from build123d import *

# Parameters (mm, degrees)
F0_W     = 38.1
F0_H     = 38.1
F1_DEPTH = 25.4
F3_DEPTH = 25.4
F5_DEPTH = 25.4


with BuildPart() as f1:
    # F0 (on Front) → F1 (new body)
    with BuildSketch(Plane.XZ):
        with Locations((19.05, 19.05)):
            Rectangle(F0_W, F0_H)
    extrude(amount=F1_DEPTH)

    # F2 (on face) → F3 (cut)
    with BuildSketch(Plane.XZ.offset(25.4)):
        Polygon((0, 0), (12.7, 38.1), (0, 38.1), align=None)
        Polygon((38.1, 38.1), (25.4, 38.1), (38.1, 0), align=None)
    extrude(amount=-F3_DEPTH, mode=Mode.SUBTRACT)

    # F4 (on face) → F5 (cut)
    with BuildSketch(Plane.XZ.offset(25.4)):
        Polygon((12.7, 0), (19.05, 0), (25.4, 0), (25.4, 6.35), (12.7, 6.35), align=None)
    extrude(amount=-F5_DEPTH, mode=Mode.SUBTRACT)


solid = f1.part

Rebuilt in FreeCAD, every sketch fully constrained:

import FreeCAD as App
import Part
import Sketcher

V = App.Vector
Q = App.Units.Quantity

doc = App.newDocument("Part")
body = doc.addObject("PartDesign::Body", "Body")

# Sketch on XZ plane
sketch1 = body.newObject("Sketcher::SketchObject", "Sketch")
sketch1.AttachmentSupport = (doc.getObject("XZ_Plane"), [""])
sketch1.MapMode = "FlatFace"
sketch1.addGeometry([
    Part.LineSegment(V(0, 38, 0), V(0, 0, 0)),
    Part.LineSegment(V(0, 0, 0), V(38, 0, 0)),
    Part.LineSegment(V(38, 0, 0), V(38, 38, 0)),
    Part.LineSegment(V(38, 38, 0), V(0, 38, 0)),
], False)
sketch1.addConstraint([
    Sketcher.Constraint("Coincident", 0, 2, 1, 1),
    Sketcher.Constraint("Coincident", 1, 2, 2, 1),
    Sketcher.Constraint("Coincident", 2, 2, 3, 1),
    Sketcher.Constraint("Coincident", 3, 2, 0, 1),
    Sketcher.Constraint("Vertical", 0),
    Sketcher.Constraint("Horizontal", 1),
    Sketcher.Constraint("Vertical", 2),
    Sketcher.Constraint("Horizontal", 3),
    Sketcher.Constraint("Coincident", 0, 2, -1, 1),
    Sketcher.Constraint("Equal", 3, 0),
    Sketcher.Constraint("DistanceX", 1, 1, 1, 2, Q("1.5 in")),
])
pad1 = body.newObject("PartDesign::Pad", "Pad")
pad1.Profile = sketch1
pad1.Length = Q("1 in")

# Sketch on XZ plane
sketch2 = body.newObject("Sketcher::SketchObject", "Sketch001")
sketch2.AttachmentSupport = (doc.getObject("XZ_Plane"), [""])
sketch2.MapMode = "FlatFace"
sketch2.AttachmentOffset = App.Placement(V(0, 0, 1 * 25.4), App.Rotation())
sketch2.addGeometry([
    Part.LineSegment(V(0, 0, 0), V(13, 38, 0)),  # 0
    Part.LineSegment(V(13, 38, 0), V(0, 38, 0)),  # 1
    Part.LineSegment(V(0, 38, 0), V(0, 0, 0)),  # 2
    Part.LineSegment(V(38, 38, 0), V(25, 38, 0)),  # 3
    Part.LineSegment(V(25, 38, 0), V(38, 0, 0)),  # 4
    Part.LineSegment(V(38, 0, 0), V(38, 38, 0)),  # 5
], False)
sketch2.addConstraint([
    Sketcher.Constraint("Coincident", 0, 2, 1, 1),
    Sketcher.Constraint("Coincident", 1, 2, 2, 1),
    Sketcher.Constraint("Coincident", 2, 2, 0, 1),
    Sketcher.Constraint("Coincident", 3, 2, 4, 1),
    Sketcher.Constraint("Coincident", 4, 2, 5, 1),
    Sketcher.Constraint("Coincident", 5, 2, 3, 1),
    Sketcher.Constraint("Horizontal", 1),
    Sketcher.Constraint("Vertical", 2),
    Sketcher.Constraint("Horizontal", 3),
    Sketcher.Constraint("Vertical", 5),
    Sketcher.Constraint("Coincident", 2, 2, -1, 1),
    Sketcher.Constraint("PointOnObject", 4, 2, -1),
    Sketcher.Constraint("Horizontal", 1, 2, 3, 2),
    Sketcher.Constraint("Equal", 1, 3),
    Sketcher.Constraint("DistanceX", 1, 2, 1, 1, Q("0.5 in")),
    Sketcher.Constraint("DistanceY", 2, 2, 2, 1, Q("1.5 in")),
    Sketcher.Constraint("DistanceX", -1, 1, 3, 2, Q("1 in")),
])
pocket1 = body.newObject("PartDesign::Pocket", "Pocket")
pocket1.Profile = sketch2
pocket1.Length = Q("1 in")

# Sketch on XZ plane
sketch3 = body.newObject("Sketcher::SketchObject", "Sketch002")
sketch3.AttachmentSupport = (doc.getObject("XZ_Plane"), [""])
sketch3.MapMode = "FlatFace"
sketch3.AttachmentOffset = App.Placement(V(0, 0, 1 * 25.4), App.Rotation())
sketch3.addGeometry([
    Part.LineSegment(V(13, 0, 0), V(25, 0, 0)),
    Part.LineSegment(V(25, 0, 0), V(25, 6, 0)),
    Part.LineSegment(V(25, 6, 0), V(13, 6, 0)),
    Part.LineSegment(V(13, 6, 0), V(13, 0, 0)),
], False)
sketch3.addConstraint([
    Sketcher.Constraint("Coincident", 0, 2, 1, 1),
    Sketcher.Constraint("Coincident", 1, 2, 2, 1),
    Sketcher.Constraint("Coincident", 2, 2, 3, 1),
    Sketcher.Constraint("Coincident", 3, 2, 0, 1),
    Sketcher.Constraint("Horizontal", 0),
    Sketcher.Constraint("Vertical", 1),
    Sketcher.Constraint("Horizontal", 2),
    Sketcher.Constraint("Vertical", 3),
    Sketcher.Constraint("PointOnObject", 0, 2, -1),
    Sketcher.Constraint("DistanceX", 0, 1, 0, 2, Q("0.5 in")),
    Sketcher.Constraint("DistanceX", -1, 1, 0, 2, Q("1 in")),
    Sketcher.Constraint("DistanceY", 1, 1, 1, 2, Q("0.25 in")),
])
pocket2 = body.newObject("PartDesign::Pocket", "Pocket001")
pocket2.Profile = sketch3
pocket2.Length = Q("1 in")

doc.recompute()
